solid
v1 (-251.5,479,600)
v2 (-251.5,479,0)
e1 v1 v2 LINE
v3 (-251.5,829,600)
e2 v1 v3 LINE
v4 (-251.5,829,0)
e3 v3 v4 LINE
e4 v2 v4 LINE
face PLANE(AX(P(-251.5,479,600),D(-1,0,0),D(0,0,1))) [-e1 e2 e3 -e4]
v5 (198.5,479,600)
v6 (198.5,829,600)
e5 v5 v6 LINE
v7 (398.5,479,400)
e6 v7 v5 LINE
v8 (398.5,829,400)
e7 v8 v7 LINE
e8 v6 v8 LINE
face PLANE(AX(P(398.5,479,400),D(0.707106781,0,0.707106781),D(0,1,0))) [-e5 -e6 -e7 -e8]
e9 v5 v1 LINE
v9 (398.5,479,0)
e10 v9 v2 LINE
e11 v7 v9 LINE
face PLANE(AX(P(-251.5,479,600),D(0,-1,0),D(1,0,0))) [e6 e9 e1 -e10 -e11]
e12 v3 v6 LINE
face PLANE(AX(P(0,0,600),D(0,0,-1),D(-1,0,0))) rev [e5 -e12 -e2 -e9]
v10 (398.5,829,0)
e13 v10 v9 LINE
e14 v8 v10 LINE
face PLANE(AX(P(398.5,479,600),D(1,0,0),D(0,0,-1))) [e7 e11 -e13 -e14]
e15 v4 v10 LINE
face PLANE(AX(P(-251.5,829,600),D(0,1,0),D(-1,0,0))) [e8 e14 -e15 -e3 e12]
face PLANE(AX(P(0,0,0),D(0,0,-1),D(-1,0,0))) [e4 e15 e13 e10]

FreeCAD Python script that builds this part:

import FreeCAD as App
import Part
import Sketcher
from FreeCAD import Vector
Q = App.Units.Quantity


def edges_at(feature, points):
    """Names of the edges that pass closest to the given points."""
    edges = feature.Shape.Edges
    near = lambda p: min(range(len(edges)), key=lambda i: edges[i].distToShape(Part.Vertex(*p))[0])
    return sorted({f"Edge{near(p) + 1}" for p in points})


def add_polygon(sketch, points):
    """Adds a closed chain of lines whose ends are joined by coincident constraints."""
    first, n = sketch.GeometryCount, len(points)
    for a, b in zip(points, points[1:] + points[:1]):
        sketch.addGeometry(Part.LineSegment(App.Vector(*a, 0), App.Vector(*b, 0)), False)
    for i in range(n):
        sketch.addConstraint(Sketcher.Constraint("Coincident", first + i, 2, first + (i + 1) % n, 1))

doc = App.newDocument("Part")
params = doc.addObject("Spreadsheet::Sheet", "Params")
for row, (alias, value) in enumerate([
    ("sketch1_width", "503 mm"),
    ("sketch1_height", "558 mm"),
    ("pad1_length", "865 mm"),
    ("sketch2_width", "398 mm"),
    ("sketch2_height", "200 mm"),
    ("sketch3_width", "148 mm"),
    ("sketch3_height", "94 mm"),
    ("sketch5_width", "650 mm"),
    ("sketch5_height", "350 mm"),
    ("pad2_length", "600 mm"),
    ("chamfer_size", "200 mm"),
    ("sketch6_width", "1000 mm"),
    ("sketch6_height", "4830 mm"),
    ("pad3_length", "30 mm"),
], start=1):
    params.set(f"A{row}", alias)
    params.set(f"B{row}", "=" + value)
    params.setAlias(f"B{row}", alias)

body = doc.addObject("PartDesign::Body", "Body")

# Sketch on XY plane
sketch1 = body.newObject("Sketcher::SketchObject", "Sketch")
sketch1.AttachmentSupport = (doc.getObject("XY_Plane"), [""])
sketch1.MapMode = "FlatFace"
add_polygon(sketch1, [(-251.5, 279), (-251.5, -279), (251.5, -279), (251.5, 279)])  # lines 0-3
sketch1.addConstraint(Sketcher.Constraint("Vertical", 0))
sketch1.addConstraint(Sketcher.Constraint("Horizontal", 1))
sketch1.addConstraint(Sketcher.Constraint("Vertical", 2))
sketch1.addConstraint(Sketcher.Constraint("Horizontal", 3))
sketch1.addConstraint(Sketcher.Constraint("Symmetric", 0, 2, 2, 2, -1, 1))
sketch1.addConstraint(Sketcher.Constraint("DistanceX", 1, 1, 1, 2, Q("503 mm")))
sketch1.addConstraint(Sketcher.Constraint("DistanceY", 0, 2, 0, 1, Q("558 mm")))
sketch1.setExpression("Constraints[9]", "Params.sketch1_width")
sketch1.setExpression("Constraints[10]", "Params.sketch1_height")
pad1 = body.newObject("PartDesign::Pad", "Pad")
pad1.Profile = sketch1
pad1.setExpression("Length", "Params.pad1_length")

# Sketch on YZ plane
sketch2 = body.newObject("Sketcher::SketchObject", "Sketch001")
sketch2.AttachmentSupport = (doc.getObject("YZ_Plane"), [""])
sketch2.MapMode = "FlatFace"
sketch2.AttachmentOffset = App.Placement(Vector(0, 0, 251.5), App.Rotation())
add_polygon(sketch2, [(199, 100), (-199, 100), (-199, -100), (199, -100)])  # lines 0-3
sketch2.addConstraint(Sketcher.Constraint("Horizontal", 0))
sketch2.addConstraint(Sketcher.Constraint("Vertical", 1))
sketch2.addConstraint(Sketcher.Constraint("Horizontal", 2))
sketch2.addConstraint(Sketcher.Constraint("Vertical", 3))
sketch2.addConstraint(Sketcher.Constraint("Symmetric", 0, 2, 2, 2, -1, 1))
sketch2.addConstraint(Sketcher.Constraint("DistanceX", 0, 2, 0, 1, Q("398 mm")))
sketch2.addConstraint(Sketcher.Constraint("DistanceY", 1, 2, 1, 1, Q("200 mm")))
sketch2.setExpression("Constraints[9]", "Params.sketch2_width")
sketch2.setExpression("Constraints[10]", "Params.sketch2_height")
pocket1 = body.newObject("PartDesign::Pocket", "Pocket")
pocket1.Profile = sketch2
pocket1.Type = "ThroughAll"

# Sketch on YZ plane
sketch3 = body.newObject("Sketcher::SketchObject", "Sketch002")
sketch3.AttachmentSupport = (doc.getObject("YZ_Plane"), [""])
sketch3.MapMode = "FlatFace"
sketch3.AttachmentOffset = App.Placement(Vector(0, 0, 251.5), App.Rotation())
add_polygon(sketch3, [(-205, 100), (-353, 100), (-353, 6), (-205, 6)])  # lines 0-3
sketch3.addConstraint(Sketcher.Constraint("Horizontal", 0))
sketch3.addConstraint(Sketcher.Constraint("Vertical", 1))
sketch3.addConstraint(Sketcher.Constraint("Horizontal", 2))
sketch3.addConstraint(Sketcher.Constraint("Vertical", 3))
sketch3.addConstraint(Sketcher.Constraint("DistanceX", 0, 2, 0, 1, Q("148 mm")))
sketch3.addConstraint(Sketcher.Constraint("DistanceY", 1, 2, 1, 1, Q("94 mm")))
sketch3.addConstraint(Sketcher.Constraint("DistanceX", 0, 2, -1, 1, Q("353 mm")))
sketch3.addConstraint(Sketcher.Constraint("DistanceY", -1, 1, 0, 2, Q("100 mm")))
sketch3.setExpression("Constraints[8]", "Params.sketch3_width")
sketch3.setExpression("Constraints[9]", "Params.sketch3_height")
pocket2 = body.newObject("PartDesign::Pocket", "Pocket001")
pocket2.Profile = sketch3
pocket2.Type = "ThroughAll"
doc.recompute()

mirrored = body.newObject("PartDesign::Mirrored", "Mirrored")
mirrored.Originals = [pocket2]
mirrored.MirrorPlane = (doc.getObject("XZ_Plane"), [""])
body.Tip = mirrored

# Sketch on YZ plane
sketch4 = body.newObject("Sketcher::SketchObject", "Sketch003")
sketch4.AttachmentSupport = (doc.getObject("YZ_Plane"), [""])
sketch4.MapMode = "FlatFace"
sketch4.AttachmentOffset = App.Placement(Vector(0, 0, 251.5), App.Rotation())
add_polygon(sketch4, [(348.512779, 1125.857074), (-878.224162, 1125.857074), (-878.224162, -198.717782), (348.512779, -198.717782)])  # lines 0-3
sketch4.addConstraint(Sketcher.Constraint("Horizontal", 0))
sketch4.addConstraint(Sketcher.Constraint("Vertical", 1))
sketch4.addConstraint(Sketcher.Constraint("Horizontal", 2))
sketch4.addConstraint(Sketcher.Constraint("Vertical", 3))
sketch4.addConstraint(Sketcher.Constraint("DistanceX", 0, 2, 0, 1, Q("1226.736941 mm")))
sketch4.addConstraint(Sketcher.Constraint("DistanceY", 1, 2, 1, 1, Q("1324.574856 mm")))
sketch4.addConstraint(Sketcher.Constraint("DistanceX", 0, 2, -1, 1, Q("878.224162 mm")))
sketch4.addConstraint(Sketcher.Constraint("DistanceY", 1, 2, -1, 1, Q("198.717782 mm")))
pocket3 = body.newObject("PartDesign::Pocket", "Pocket002")
pocket3.Profile = sketch4
pocket3.Type = "ThroughAll"
body2 = doc.addObject("PartDesign::Body", "Body001")

# Sketch on XY plane
sketch5 = body2.newObject("Sketcher::SketchObject", "Sketch004")
sketch5.AttachmentSupport = (doc.getObject("XY_Plane001"), [""])
sketch5.MapMode = "FlatFace"
add_polygon(sketch5, [(398.5, 829), (398.5, 479), (-251.5, 479), (-251.5, 829)])  # lines 0-3
sketch5.addConstraint(Sketcher.Constraint("Vertical", 0))
sketch5.addConstraint(Sketcher.Constraint("Horizontal", 1))
sketch5.addConstraint(Sketcher.Constraint("Vertical", 2))
sketch5.addConstraint(Sketcher.Constraint("Horizontal", 3))
sketch5.addConstraint(Sketcher.Constraint("DistanceX", 1, 2, 1, 1, Q("650 mm")))
sketch5.addConstraint(Sketcher.Constraint("DistanceY", 0, 2, 0, 1, Q("350 mm")))
sketch5.addConstraint(Sketcher.Constraint("DistanceY", -1, 1, 0, 2, Q("479 mm")))
sketch5.addConstraint(Sketcher.Constraint("DistanceX", -1, 1, 0, 2, Q("398.5 mm")))
sketch5.setExpression("Constraints[8]", "Params.sketch5_width")
sketch5.setExpression("Constraints[9]", "Params.sketch5_height")
pad2 = body2.newObject("PartDesign::Pad", "Pad001")
pad2.Profile = sketch5
pad2.setExpression("Length", "Params.pad2_length")
doc.recompute()

chamfer = body2.newObject("PartDesign::Chamfer", "Chamfer")
chamfer.Base = (pad2, edges_at(pad2, [(398.5, 654, 600)]))
chamfer.setExpression("Size", "Params.chamfer_size")
body3 = doc.addObject("PartDesign::Body", "Body002")

# Sketch on XY plane
sketch6 = body3.newObject("Sketcher::SketchObject", "Sketch005")
sketch6.AttachmentSupport = (doc.getObject("XY_Plane002"), [""])
sketch6.MapMode = "FlatFace"
add_polygon(sketch6, [(748.5, 1129), (748.5, -3701), (-251.5, -3701), (-251.5, 1129)])  # lines 0-3
sketch6.addConstraint(Sketcher.Constraint("Vertical", 0))
sketch6.addConstraint(Sketcher.Constraint("Horizontal", 1))
sketch6.addConstraint(Sketcher.Constraint("Vertical", 2))
sketch6.addConstraint(Sketcher.Constraint("Horizontal", 3))
sketch6.addConstraint(Sketcher.Constraint("DistanceX", 1, 2, 1, 1, Q("1000 mm")))
sketch6.addConstraint(Sketcher.Constraint("DistanceY", 0, 2, 0, 1, Q("4830 mm")))
sketch6.addConstraint(Sketcher.Constraint("DistanceY", 0, 2, -1, 1, Q("3701 mm")))
sketch6.addConstraint(Sketcher.Constraint("DistanceX", -1, 1, 0, 2, Q("748.5 mm")))
sketch6.setExpression("Constraints[8]", "Params.sketch6_width")
sketch6.setExpression("Constraints[9]", "Params.sketch6_height")
pad3 = body3.newObject("PartDesign::Pad", "Pad002")
pad3.Profile = sketch6
pad3.setExpression("Length", "Params.pad3_length")
pad3.Reversed = True

# Sketch on YZ plane
sketch7 = body3.newObject("Sketcher::SketchObject", "Sketch006")
sketch7.AttachmentSupport = (doc.getObject("YZ_Plane002"), [""])
sketch7.MapMode = "FlatFace"
sketch7.AttachmentOffset = App.Placement(Vector(0, 0, 748.5), App.Rotation())
add_polygon(sketch7, [(1129, 0), (-3888.857148, 0), (-3888.857148, -625.77477), (1129, -625.77477)])  # lines 0-3
sketch7.addConstraint(Sketcher.Constraint("Horizontal", 0))
sketch7.addConstraint(Sketcher.Constraint("Vertical", 1))
sketch7.addConstraint(Sketcher.Constraint("Horizontal", 2))
sketch7.addConstraint(Sketcher.Constraint("Vertical", 3))
sketch7.addConstraint(Sketcher.Constraint("PointOnObject", 0, 2, -1))
sketch7.addConstraint(Sketcher.Constraint("DistanceX", -1, 1, 2, 2, Q("1129 mm")))
sketch7.addConstraint(Sketcher.Constraint("DistanceX", 0, 2, 0, 1, Q("5017.857148 mm")))
sketch7.addConstraint(Sketcher.Constraint("DistanceY", 1, 2, 1, 1, Q("625.77477 mm")))
pocket4 = body3.newObject("PartDesign::Pocket", "Pocket003")
pocket4.Profile = sketch7
pocket4.Type = "ThroughAll"

doc.recompute()
